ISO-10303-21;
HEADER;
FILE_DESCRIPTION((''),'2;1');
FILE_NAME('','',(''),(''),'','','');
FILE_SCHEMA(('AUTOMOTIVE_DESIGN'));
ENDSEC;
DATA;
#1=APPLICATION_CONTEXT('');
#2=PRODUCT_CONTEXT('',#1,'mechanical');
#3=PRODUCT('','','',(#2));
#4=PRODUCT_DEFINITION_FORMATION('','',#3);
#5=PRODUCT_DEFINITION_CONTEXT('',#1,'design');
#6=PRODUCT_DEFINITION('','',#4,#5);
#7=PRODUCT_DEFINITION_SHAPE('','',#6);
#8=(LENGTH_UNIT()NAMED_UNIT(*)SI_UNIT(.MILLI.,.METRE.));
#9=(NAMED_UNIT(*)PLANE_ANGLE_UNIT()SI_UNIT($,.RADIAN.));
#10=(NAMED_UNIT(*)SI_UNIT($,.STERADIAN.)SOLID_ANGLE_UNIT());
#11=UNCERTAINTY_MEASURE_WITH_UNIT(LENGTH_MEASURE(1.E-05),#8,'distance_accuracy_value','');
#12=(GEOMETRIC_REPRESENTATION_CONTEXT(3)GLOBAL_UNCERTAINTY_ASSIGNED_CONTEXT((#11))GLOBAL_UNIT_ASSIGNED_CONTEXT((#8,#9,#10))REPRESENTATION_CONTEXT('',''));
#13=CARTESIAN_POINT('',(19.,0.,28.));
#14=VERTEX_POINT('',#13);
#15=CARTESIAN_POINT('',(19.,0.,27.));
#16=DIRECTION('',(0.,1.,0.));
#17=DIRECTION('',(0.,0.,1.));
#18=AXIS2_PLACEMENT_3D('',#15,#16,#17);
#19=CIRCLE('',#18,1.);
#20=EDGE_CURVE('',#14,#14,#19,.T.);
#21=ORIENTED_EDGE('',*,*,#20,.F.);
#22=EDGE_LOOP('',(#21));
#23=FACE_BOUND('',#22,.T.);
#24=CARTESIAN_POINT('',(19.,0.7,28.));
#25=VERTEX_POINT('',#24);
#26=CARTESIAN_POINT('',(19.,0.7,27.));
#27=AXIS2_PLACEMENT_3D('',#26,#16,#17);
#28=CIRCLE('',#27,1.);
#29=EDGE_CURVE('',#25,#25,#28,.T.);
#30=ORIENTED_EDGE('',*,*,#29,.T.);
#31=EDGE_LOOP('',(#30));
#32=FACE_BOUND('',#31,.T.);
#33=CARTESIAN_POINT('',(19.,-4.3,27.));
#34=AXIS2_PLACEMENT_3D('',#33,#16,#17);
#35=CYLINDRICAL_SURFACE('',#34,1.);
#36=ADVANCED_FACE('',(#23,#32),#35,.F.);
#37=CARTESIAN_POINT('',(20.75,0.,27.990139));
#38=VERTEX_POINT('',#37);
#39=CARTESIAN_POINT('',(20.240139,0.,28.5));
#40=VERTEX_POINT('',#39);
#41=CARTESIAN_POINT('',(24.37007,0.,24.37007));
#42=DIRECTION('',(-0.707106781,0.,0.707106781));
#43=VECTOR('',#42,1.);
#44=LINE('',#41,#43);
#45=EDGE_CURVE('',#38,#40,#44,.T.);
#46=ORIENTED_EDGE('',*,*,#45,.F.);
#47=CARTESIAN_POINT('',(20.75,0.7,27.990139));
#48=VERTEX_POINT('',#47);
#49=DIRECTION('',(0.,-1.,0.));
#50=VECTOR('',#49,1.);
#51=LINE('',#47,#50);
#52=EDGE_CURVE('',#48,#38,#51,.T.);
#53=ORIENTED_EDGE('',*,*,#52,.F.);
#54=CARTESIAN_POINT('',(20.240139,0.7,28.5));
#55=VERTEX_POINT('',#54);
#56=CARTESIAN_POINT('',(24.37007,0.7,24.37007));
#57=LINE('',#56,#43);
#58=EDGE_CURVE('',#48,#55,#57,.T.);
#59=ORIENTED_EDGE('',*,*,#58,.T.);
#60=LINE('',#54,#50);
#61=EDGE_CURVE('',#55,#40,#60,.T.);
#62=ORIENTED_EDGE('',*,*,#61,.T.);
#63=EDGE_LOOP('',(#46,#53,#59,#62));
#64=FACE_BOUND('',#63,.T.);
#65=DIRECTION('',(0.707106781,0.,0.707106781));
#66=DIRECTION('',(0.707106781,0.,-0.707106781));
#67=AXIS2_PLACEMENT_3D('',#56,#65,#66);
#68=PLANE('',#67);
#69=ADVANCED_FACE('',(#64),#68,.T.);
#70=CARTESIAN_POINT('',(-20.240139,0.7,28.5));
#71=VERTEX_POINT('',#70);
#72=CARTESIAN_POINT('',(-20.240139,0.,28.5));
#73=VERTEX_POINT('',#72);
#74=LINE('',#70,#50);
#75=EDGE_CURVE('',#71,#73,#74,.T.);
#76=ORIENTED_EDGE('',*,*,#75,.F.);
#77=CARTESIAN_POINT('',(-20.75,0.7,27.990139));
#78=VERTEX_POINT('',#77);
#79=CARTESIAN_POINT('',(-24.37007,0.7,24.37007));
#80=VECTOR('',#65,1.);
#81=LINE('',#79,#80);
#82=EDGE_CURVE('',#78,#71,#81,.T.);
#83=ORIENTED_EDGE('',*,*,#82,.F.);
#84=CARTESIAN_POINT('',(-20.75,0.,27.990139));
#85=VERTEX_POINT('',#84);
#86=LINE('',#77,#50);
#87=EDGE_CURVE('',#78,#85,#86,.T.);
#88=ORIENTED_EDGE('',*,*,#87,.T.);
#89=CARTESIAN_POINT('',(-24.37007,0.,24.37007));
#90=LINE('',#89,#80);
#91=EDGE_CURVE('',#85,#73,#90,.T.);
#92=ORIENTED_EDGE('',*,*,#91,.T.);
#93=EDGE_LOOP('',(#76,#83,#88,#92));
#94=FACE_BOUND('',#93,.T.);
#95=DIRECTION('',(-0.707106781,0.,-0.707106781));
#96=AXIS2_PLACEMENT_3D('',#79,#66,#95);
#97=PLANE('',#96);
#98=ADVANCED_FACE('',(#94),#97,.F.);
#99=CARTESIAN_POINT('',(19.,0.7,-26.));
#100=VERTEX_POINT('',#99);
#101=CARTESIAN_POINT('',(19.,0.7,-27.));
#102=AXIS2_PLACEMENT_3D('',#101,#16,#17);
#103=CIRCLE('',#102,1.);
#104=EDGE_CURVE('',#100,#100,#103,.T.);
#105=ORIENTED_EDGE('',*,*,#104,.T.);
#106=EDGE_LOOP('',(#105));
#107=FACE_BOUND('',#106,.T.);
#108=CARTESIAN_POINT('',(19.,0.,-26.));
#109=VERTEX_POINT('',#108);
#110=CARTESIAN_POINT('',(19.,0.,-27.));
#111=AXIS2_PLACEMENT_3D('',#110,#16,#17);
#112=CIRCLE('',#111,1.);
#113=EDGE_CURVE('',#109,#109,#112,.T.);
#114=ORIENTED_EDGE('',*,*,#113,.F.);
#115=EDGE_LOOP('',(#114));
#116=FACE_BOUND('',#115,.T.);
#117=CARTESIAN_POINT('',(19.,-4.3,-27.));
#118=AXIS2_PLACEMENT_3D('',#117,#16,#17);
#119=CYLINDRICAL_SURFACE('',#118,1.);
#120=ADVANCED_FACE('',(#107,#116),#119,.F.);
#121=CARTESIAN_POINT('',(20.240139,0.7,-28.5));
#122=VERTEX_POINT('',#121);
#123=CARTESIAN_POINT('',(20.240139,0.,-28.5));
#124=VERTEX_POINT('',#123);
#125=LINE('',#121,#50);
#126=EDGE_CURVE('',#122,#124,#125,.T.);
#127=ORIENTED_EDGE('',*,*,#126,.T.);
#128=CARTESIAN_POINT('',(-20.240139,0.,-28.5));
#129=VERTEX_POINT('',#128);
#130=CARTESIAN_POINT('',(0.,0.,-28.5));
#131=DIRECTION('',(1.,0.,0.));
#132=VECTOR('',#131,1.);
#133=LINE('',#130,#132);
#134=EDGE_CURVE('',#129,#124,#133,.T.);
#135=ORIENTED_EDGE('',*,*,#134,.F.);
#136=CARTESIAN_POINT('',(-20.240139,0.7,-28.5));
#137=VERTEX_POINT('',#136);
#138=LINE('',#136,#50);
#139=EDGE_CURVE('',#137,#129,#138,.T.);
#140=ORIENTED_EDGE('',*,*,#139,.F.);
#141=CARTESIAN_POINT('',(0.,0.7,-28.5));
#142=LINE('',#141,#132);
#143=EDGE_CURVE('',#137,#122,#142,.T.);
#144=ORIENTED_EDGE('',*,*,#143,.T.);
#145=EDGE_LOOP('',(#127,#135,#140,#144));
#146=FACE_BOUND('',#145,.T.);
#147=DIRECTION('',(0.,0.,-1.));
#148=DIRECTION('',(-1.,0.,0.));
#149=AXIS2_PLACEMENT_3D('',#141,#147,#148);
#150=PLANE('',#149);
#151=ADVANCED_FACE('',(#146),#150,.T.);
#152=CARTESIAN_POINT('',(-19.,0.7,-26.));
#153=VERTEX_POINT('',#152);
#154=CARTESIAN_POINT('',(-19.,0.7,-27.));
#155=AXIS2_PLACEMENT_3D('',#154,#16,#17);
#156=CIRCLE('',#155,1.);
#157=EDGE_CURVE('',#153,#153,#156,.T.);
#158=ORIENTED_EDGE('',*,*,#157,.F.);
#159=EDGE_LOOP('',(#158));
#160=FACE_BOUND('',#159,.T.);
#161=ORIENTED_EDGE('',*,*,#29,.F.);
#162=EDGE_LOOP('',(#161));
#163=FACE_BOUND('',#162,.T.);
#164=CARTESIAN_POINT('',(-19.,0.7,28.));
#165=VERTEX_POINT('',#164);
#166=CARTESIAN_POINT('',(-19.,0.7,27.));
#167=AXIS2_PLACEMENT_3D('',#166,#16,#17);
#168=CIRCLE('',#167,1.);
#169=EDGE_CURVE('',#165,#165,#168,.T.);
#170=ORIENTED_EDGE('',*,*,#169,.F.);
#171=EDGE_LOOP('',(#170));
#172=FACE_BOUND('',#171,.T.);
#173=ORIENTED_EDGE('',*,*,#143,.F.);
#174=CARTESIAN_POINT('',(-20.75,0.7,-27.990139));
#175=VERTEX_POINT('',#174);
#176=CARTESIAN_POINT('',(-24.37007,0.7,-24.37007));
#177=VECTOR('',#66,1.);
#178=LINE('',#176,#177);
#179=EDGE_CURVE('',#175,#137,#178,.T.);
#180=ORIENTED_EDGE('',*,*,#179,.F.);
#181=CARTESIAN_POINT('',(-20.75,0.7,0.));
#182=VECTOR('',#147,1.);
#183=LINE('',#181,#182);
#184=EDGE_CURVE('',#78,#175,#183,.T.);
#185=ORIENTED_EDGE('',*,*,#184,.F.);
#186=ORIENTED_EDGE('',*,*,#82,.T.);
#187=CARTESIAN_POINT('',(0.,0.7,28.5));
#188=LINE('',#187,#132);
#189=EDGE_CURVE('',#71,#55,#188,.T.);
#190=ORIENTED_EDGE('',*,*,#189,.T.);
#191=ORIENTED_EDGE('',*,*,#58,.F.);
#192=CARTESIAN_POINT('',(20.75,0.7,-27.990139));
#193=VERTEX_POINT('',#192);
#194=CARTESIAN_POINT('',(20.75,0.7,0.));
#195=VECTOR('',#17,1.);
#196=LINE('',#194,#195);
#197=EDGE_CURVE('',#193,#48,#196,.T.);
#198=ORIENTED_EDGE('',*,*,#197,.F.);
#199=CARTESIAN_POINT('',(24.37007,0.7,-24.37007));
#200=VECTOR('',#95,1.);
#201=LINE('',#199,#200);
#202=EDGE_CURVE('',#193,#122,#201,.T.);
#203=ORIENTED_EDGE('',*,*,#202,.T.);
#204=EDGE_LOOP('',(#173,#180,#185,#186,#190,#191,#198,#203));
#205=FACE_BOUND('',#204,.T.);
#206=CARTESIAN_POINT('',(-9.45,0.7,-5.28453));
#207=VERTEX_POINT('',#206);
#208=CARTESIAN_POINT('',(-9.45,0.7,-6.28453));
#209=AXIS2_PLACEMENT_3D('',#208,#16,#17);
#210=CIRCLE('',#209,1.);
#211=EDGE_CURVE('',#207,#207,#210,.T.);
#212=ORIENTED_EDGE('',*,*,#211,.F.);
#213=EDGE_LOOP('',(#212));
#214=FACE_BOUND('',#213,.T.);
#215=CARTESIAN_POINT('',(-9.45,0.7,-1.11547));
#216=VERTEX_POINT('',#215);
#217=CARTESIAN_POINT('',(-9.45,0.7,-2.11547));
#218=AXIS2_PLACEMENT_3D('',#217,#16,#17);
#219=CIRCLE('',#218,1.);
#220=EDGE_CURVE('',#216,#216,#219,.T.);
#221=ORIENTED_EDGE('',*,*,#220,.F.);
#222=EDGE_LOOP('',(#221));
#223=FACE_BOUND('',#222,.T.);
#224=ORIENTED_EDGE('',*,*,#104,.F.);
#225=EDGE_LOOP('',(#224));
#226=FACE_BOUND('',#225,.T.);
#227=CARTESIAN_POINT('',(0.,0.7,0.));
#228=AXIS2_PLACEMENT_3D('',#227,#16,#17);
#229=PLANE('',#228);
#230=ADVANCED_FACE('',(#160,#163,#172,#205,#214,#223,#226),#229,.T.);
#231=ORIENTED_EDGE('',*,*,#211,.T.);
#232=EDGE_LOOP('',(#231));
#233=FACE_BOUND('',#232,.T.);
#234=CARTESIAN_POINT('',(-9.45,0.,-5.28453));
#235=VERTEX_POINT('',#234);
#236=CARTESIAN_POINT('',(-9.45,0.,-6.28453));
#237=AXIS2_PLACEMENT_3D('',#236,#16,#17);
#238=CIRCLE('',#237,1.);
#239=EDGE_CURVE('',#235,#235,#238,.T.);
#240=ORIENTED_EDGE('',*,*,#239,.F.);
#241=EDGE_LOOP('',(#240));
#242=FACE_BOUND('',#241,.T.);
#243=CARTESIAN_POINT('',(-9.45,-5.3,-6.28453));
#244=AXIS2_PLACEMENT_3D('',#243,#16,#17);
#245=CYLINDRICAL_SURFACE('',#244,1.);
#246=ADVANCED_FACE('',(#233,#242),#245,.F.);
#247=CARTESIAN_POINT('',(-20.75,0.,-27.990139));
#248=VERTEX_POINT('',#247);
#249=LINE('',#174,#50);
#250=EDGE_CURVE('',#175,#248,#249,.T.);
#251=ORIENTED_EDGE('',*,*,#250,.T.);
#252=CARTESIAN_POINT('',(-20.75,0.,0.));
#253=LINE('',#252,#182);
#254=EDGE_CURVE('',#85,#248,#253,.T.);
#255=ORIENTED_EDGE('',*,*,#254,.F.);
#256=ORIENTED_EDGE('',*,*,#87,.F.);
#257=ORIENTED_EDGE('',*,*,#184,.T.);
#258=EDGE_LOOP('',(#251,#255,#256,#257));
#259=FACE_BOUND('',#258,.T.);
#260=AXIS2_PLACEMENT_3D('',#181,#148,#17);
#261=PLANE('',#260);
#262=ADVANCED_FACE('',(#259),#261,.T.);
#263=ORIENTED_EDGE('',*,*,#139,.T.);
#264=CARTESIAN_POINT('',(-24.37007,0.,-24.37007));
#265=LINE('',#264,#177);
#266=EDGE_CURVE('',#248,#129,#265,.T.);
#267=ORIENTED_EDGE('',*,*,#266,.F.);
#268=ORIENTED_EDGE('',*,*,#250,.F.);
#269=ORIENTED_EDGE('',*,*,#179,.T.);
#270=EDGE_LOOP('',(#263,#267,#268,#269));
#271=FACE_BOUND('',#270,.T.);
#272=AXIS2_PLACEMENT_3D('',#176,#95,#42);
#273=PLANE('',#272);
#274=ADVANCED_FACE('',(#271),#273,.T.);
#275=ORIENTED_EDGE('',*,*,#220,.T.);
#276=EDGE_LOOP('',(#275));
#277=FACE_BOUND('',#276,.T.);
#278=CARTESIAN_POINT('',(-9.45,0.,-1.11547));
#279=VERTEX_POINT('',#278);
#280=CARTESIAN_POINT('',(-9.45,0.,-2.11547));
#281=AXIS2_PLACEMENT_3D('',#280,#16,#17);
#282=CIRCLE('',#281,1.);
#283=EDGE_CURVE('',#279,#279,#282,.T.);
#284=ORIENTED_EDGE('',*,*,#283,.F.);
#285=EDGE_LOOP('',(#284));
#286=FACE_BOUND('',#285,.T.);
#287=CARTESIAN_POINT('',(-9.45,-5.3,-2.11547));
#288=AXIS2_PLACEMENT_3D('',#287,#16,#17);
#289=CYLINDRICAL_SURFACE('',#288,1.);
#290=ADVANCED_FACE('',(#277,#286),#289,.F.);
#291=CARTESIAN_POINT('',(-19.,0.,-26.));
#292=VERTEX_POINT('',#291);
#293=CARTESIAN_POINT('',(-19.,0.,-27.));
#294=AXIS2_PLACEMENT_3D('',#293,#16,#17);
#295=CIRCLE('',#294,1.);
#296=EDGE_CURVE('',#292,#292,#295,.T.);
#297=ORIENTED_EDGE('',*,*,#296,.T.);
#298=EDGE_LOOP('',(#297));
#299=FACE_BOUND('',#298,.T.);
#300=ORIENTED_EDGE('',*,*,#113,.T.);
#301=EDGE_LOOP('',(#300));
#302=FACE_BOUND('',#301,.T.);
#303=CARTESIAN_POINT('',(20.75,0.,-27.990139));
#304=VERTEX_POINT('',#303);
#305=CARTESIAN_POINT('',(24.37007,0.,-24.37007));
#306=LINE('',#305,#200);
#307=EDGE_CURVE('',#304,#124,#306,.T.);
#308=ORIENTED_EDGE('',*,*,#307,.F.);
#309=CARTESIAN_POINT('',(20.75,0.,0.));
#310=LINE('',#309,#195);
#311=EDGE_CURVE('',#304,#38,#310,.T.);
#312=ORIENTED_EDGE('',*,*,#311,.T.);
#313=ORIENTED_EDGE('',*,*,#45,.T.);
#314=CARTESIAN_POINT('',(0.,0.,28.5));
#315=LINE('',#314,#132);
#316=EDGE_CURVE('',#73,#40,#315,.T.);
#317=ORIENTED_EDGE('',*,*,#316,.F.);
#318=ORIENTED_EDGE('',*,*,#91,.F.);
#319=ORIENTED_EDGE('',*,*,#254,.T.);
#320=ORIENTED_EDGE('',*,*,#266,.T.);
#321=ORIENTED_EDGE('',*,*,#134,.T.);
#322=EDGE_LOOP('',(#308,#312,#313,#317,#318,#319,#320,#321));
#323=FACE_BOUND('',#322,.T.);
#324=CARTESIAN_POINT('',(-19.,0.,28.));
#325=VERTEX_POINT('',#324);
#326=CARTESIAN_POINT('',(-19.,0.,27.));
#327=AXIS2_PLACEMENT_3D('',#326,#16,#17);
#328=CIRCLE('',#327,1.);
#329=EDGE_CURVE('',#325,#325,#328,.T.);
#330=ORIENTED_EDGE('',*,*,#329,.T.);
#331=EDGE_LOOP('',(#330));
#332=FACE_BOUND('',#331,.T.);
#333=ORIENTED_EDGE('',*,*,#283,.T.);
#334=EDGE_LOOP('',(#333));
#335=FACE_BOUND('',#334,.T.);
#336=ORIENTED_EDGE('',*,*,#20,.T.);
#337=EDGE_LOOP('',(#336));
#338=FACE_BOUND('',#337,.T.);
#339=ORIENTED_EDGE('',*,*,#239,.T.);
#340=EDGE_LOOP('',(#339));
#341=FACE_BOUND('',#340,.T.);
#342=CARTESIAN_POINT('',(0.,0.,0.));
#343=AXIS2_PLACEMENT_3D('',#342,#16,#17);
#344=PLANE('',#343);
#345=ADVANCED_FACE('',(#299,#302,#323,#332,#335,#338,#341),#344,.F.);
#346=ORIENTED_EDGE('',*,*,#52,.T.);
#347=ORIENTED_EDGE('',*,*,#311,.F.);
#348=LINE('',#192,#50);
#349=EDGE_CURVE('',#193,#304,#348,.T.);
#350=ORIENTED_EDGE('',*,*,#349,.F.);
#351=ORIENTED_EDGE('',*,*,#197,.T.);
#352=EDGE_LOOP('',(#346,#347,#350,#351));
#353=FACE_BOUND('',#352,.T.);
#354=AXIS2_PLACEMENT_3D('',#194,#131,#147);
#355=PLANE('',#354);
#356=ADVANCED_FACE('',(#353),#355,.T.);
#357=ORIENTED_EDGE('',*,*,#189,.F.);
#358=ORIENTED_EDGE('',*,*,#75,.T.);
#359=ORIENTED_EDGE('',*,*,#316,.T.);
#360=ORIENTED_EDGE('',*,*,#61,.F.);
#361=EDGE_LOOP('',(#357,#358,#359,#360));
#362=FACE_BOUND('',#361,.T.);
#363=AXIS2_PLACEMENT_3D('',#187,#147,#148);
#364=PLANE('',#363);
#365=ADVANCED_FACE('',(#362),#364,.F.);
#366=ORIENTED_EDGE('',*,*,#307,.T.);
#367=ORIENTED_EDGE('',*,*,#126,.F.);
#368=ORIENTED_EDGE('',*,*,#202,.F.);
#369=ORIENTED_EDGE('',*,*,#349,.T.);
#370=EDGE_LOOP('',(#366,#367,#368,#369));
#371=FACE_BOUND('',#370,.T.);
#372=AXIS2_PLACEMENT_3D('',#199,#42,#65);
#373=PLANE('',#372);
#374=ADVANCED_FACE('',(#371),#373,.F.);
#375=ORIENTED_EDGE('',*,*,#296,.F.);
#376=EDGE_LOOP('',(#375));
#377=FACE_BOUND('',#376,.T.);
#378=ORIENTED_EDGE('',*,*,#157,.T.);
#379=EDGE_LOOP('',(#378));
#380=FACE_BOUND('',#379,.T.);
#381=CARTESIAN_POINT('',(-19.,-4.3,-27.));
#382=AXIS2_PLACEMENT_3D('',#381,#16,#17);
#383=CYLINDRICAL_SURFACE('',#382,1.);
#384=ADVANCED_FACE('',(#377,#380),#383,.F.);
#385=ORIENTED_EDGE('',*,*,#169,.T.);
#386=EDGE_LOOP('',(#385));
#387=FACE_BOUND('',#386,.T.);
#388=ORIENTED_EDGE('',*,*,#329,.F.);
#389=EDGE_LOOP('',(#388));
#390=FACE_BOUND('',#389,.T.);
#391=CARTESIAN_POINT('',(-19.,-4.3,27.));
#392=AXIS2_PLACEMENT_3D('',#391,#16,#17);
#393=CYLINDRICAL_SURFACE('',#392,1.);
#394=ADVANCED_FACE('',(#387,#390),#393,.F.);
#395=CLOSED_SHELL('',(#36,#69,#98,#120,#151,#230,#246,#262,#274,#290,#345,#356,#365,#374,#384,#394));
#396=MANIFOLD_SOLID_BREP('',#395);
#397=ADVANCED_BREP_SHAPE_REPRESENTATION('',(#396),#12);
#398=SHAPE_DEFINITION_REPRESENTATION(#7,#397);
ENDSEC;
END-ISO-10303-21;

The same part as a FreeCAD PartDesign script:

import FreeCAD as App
import Part
import Sketcher
from FreeCAD import Vector
Q = App.Units.Quantity

doc = App.newDocument("Part")
body = doc.addObject("PartDesign::Body", "Body")

sketch1 = body.newObject("Sketcher::SketchObject", "Sketch")
sketch1.AttachmentSupport = (doc.getObject("XZ_Plane"), [""])
sketch1.MapMode = "FlatFace"
sketch1.addGeometry(Part.LineSegment(Vector(20.2, 28.5, 0), Vector(20.8, 28, 0)), False)
sketch1.addGeometry(Part.LineSegment(Vector(20.8, 28, 0), Vector(20.8, -28, 0)), False)
sketch1.addGeometry(Part.LineSegment(Vector(20.8, -28, 0), Vector(20.2, -28.5, 0)), False)
sketch1.addGeometry(Part.LineSegment(Vector(20.2, -28.5, 0), Vector(-20.2, -28.5, 0)), False)
sketch1.addGeometry(Part.LineSegment(Vector(-20.2, -28.5, 0), Vector(-20.8, -28, 0)), False)
sketch1.addGeometry(Part.LineSegment(Vector(-20.8, -28, 0), Vector(-20.8, 28, 0)), False)
sketch1.addGeometry(Part.LineSegment(Vector(-20.8, 28, 0), Vector(-20.2, 28.5, 0)), False)
sketch1.addGeometry(Part.LineSegment(Vector(-20.2, 28.5, 0), Vector(20.2, 28.5, 0)), False)
sketch1.addConstraint(Sketcher.Constraint("Coincident", 0, 2, 1, 1))
sketch1.addConstraint(Sketcher.Constraint("Coincident", 1, 2, 2, 1))
sketch1.addConstraint(Sketcher.Constraint("Coincident", 2, 2, 3, 1))
sketch1.addConstraint(Sketcher.Constraint("Coincident", 3, 2, 4, 1))
sketch1.addConstraint(Sketcher.Constraint("Coincident", 4, 2, 5, 1))
sketch1.addConstraint(Sketcher.Constraint("Coincident", 5, 2, 6, 1))
sketch1.addConstraint(Sketcher.Constraint("Coincident", 6, 2, 7, 1))
sketch1.addConstraint(Sketcher.Constraint("Coincident", 7, 2, 0, 1))
sketch1.addConstraint(Sketcher.Constraint("Vertical", 1))
sketch1.addConstraint(Sketcher.Constraint("Horizontal", 3))
sketch1.addConstraint(Sketcher.Constraint("Vertical", 5))
sketch1.addConstraint(Sketcher.Constraint("Horizontal", 7))
sketch1.addConstraint(Sketcher.Constraint("Symmetric", 0, 2, 4, 2, -1, 1))
sketch1.addConstraint(Sketcher.Constraint("Symmetric", 2, 2, 6, 2, -1, 1))
sketch1.addConstraint(Sketcher.Constraint("Perpendicular", 0, 2))
sketch1.addConstraint(Sketcher.Constraint("Perpendicular", 2, 4))
sketch1.addConstraint(Sketcher.Constraint("Perpendicular", 4, 6))
sketch1.addConstraint(Sketcher.Constraint("Horizontal", 1, 2, 4, 2))
sketch1.addConstraint(Sketcher.Constraint("Vertical", 3, 2, 6, 2))
sketch1.addConstraint(Sketcher.Constraint("DistanceY", 3, 2, 6, 2, Q("57 mm")))
sketch1.addConstraint(Sketcher.Constraint("DistanceX", 4, 2, 1, 2, Q("41.5 mm")))
sketch1.addConstraint(Sketcher.Constraint("DistanceX", 3, 2, 3, 1, Q("40.480279 mm")))
pad1 = body.newObject("PartDesign::Pad", "Pad")
pad1.Profile = sketch1
pad1.Length = 0.7
pad1.Reversed = True

sketch2 = body.newObject("Sketcher::SketchObject", "Sketch001")
sketch2.AttachmentSupport = (doc.getObject("XZ_Plane"), [""])
sketch2.MapMode = "FlatFace"
sketch2.AttachmentOffset = App.Placement(Vector(0, 0, -0.7), App.Rotation())
sketch2.addGeometry(Part.Circle(Vector(-19, -27, 0), Vector(0, 0, 1), 1), False)
sketch2.addGeometry(Part.Circle(Vector(19, -27, 0), Vector(0, 0, 1), 1), False)
sketch2.addGeometry(Part.Circle(Vector(19, 27, 0), Vector(0, 0, 1), 1), False)
sketch2.addGeometry(Part.Circle(Vector(-19, 27, 0), Vector(0, 0, 1), 1), False)
sketch2.addConstraint(Sketcher.Constraint("Equal", 0, 1))
sketch2.addConstraint(Sketcher.Constraint("Equal", 1, 2))
sketch2.addConstraint(Sketcher.Constraint("Equal", 2, 3))
sketch2.addConstraint(Sketcher.Constraint("Symmetric", 0, 3, 2, 3, -1, 1))
sketch2.addConstraint(Sketcher.Constraint("Symmetric", 1, 3, 3, 3, -1, 1))
sketch2.addConstraint(Sketcher.Constraint("Symmetric", 0, 3, 1, 3, -2))
sketch2.addConstraint(Sketcher.Constraint("Diameter", 0, Q("2 mm")))
sketch2.addConstraint(Sketcher.Constraint("DistanceX", 0, 3, -1, 1, Q("19 mm")))
sketch2.addConstraint(Sketcher.Constraint("DistanceY", 0, 3, -1, 1, Q("27 mm")))
pocket1 = body.newObject("PartDesign::Pocket", "Pocket")
pocket1.Profile = sketch2
pocket1.Length = 5
pocket1.Reversed = True

sketch3 = body.newObject("Sketcher::SketchObject", "Sketch002")
sketch3.AttachmentSupport = (doc.getObject("XZ_Plane"), [""])
sketch3.MapMode = "FlatFace"
sketch3.AttachmentOffset = App.Placement(Vector(0, 0, -0.7), App.Rotation())
sketch3.addGeometry(Part.Circle(Vector(-9.4, -6.3, 0), Vector(0, 0, 1), 1), False)
sketch3.addGeometry(Part.Circle(Vector(-9.4, -2.1, 0), Vector(0, 0, 1), 1), False)
sketch3.addConstraint(Sketcher.Constraint("Equal", 0, 1))
sketch3.addConstraint(Sketcher.Constraint("Vertical", 0, 3, 1, 3))
sketch3.addConstraint(Sketcher.Constraint("Diameter", 0, Q("2 mm")))
sketch3.addConstraint(Sketcher.Constraint("DistanceX", 0, 3, -1, 1, Q("9.45 mm")))
sketch3.addConstraint(Sketcher.Constraint("DistanceY", 0, 3, -1, 1, Q("6.28453 mm")))
sketch3.addConstraint(Sketcher.Constraint("DistanceY", 1, 3, -1, 1, Q("2.11547 mm")))
pocket2 = body.newObject("PartDesign::Pocket", "Pocket001")
pocket2.Profile = sketch3
pocket2.Length = 6
pocket2.Reversed = True

doc.recompute()
